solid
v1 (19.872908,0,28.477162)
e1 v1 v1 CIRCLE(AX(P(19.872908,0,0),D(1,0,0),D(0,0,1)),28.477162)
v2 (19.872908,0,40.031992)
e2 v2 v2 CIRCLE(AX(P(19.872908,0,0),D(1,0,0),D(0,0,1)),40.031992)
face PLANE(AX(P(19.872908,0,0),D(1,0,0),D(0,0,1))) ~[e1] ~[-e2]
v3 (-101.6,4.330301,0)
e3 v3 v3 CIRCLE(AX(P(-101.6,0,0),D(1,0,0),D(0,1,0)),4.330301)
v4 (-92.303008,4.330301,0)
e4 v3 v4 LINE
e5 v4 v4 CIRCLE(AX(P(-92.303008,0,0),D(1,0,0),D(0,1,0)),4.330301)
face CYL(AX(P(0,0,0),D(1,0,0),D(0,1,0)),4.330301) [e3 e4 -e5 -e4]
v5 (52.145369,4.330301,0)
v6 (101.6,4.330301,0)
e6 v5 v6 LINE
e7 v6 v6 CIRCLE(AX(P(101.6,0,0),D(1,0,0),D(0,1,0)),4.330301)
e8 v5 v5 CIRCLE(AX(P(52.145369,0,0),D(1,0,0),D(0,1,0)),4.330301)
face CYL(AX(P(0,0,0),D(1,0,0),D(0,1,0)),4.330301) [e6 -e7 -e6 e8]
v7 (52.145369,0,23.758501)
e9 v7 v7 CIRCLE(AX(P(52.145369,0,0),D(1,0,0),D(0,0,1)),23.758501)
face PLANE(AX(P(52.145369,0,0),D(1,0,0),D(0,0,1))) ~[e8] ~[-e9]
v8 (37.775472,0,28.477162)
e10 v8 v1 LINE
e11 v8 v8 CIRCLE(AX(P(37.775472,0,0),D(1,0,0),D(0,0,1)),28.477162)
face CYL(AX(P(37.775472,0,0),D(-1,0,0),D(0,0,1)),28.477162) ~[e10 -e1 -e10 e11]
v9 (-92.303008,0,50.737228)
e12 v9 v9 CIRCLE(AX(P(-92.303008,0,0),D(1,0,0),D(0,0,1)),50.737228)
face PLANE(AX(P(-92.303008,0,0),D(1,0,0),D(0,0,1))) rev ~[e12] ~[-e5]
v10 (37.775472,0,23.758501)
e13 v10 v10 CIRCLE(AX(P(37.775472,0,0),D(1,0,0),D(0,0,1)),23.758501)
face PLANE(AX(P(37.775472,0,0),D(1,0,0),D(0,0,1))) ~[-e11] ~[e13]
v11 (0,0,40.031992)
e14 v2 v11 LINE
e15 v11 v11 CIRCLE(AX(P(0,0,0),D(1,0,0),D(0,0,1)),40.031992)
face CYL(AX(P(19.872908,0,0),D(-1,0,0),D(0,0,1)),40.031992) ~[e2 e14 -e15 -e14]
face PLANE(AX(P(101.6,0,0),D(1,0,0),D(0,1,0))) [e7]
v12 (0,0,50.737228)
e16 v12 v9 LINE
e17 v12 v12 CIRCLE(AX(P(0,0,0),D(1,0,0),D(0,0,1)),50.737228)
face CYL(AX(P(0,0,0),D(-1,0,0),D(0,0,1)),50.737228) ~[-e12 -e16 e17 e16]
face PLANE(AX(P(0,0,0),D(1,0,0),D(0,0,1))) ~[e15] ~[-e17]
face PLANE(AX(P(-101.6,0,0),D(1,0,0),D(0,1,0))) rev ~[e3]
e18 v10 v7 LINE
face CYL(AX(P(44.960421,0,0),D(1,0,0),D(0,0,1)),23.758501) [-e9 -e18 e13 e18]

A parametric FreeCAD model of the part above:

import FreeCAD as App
import Part
import Sketcher
Q = App.Units.Quantity

doc = App.newDocument("Part")
body = doc.addObject("PartDesign::Body", "Body")

sketch1 = body.newObject("Sketcher::SketchObject", "Sketch")
sketch1.AttachmentSupport = (doc.getObject("YZ_Plane"), [""])
sketch1.MapMode = "FlatFace"
sketch1.addGeometry(Part.Circle(App.Vector(0, 0, 0), App.Vector(0, 0, 1), 4.330301), False)
sketch1.addConstraint([
    Sketcher.Constraint("Coincident", 0, 3, -1, 1),
    Sketcher.Constraint("Diameter", 0, Q("8.660601 mm")),
])
pad1 = body.newObject("PartDesign::Pad", "Pad")
pad1.Profile = sketch1
pad1.Length = Q("8 in")
pad1.Midplane = True

sketch2 = body.newObject("Sketcher::SketchObject", "Sketch001")
sketch2.AttachmentSupport = (doc.getObject("XZ_Plane"), [""])
sketch2.MapMode = "FlatFace"
sketch2.addGeometry([
    Part.LineSegment(App.Vector(-92.303008, 50.737228, 0), App.Vector(-92.303008, 0, 0)),
    Part.LineSegment(App.Vector(-92.303008, 0, 0), App.Vector(52.145369, 0, 0)),
    Part.LineSegment(App.Vector(52.145369, 0, 0), App.Vector(52.145369, 23.758501, 0)),
    Part.LineSegment(App.Vector(52.145369, 23.758501, 0), App.Vector(37.775472, 23.758501, 0)),
    Part.LineSegment(App.Vector(37.775472, 23.758501, 0), App.Vector(37.775472, 28.477162, 0)),
    Part.LineSegment(App.Vector(37.775472, 28.477162, 0), App.Vector(19.872908, 28.477162, 0)),
    Part.LineSegment(App.Vector(19.872908, 28.477162, 0), App.Vector(19.872908, 40.031992, 0)),
    Part.LineSegment(App.Vector(19.872908, 40.031992, 0), App.Vector(0, 40.031992, 0)),
    Part.LineSegment(App.Vector(0, 40.031992, 0), App.Vector(0, 50.737228, 0)),
    Part.LineSegment(App.Vector(0, 50.737228, 0), App.Vector(-92.303008, 50.737228, 0)),
], False)
sketch2.addConstraint([
    Sketcher.Constraint("Coincident", 0, 2, 1, 1),
    Sketcher.Constraint("Coincident", 1, 2, 2, 1),
    Sketcher.Constraint("Coincident", 2, 2, 3, 1),
    Sketcher.Constraint("Coincident", 3, 2, 4, 1),
    Sketcher.Constraint("Coincident", 4, 2, 5, 1),
    Sketcher.Constraint("Coincident", 5, 2, 6, 1),
    Sketcher.Constraint("Coincident", 6, 2, 7, 1),
    Sketcher.Constraint("Coincident", 7, 2, 8, 1),
    Sketcher.Constraint("Coincident", 8, 2, 9, 1),
    Sketcher.Constraint("Coincident", 9, 2, 0, 1),
    Sketcher.Constraint("Vertical", 0),
    Sketcher.Constraint("Horizontal", 1),
    Sketcher.Constraint("Vertical", 2),
    Sketcher.Constraint("Horizontal", 3),
    Sketcher.Constraint("Vertical", 4),
    Sketcher.Constraint("Horizontal", 5),
    Sketcher.Constraint("Vertical", 6),
    Sketcher.Constraint("Horizontal", 7),
    Sketcher.Constraint("Vertical", 8),
    Sketcher.Constraint("Horizontal", 9),
    Sketcher.Constraint("PointOnObject", 0, 2, -1),
    Sketcher.Constraint("PointOnObject", 7, 2, -2),
    Sketcher.Constraint("DistanceY", 2, 1, 2, 2, Q("23.758501 mm")),
    Sketcher.Constraint("DistanceX", 0, 2, 3, 2, Q("5.1212 in")),
    Sketcher.Constraint("DistanceY", 0, 2, 0, 1, Q("50.737228 mm")),
    Sketcher.Constraint("DistanceY", 4, 1, 4, 2, Q("4.718661 mm")),
    Sketcher.Constraint("DistanceY", 6, 1, 6, 2, Q("11.55483 mm")),
    Sketcher.Constraint("DistanceX", 1, 1, 1, 2, Q("144.448377 mm")),
    Sketcher.Constraint("DistanceX", 5, 2, 5, 1, Q("17.902564 mm")),
    Sketcher.Constraint("DistanceX", 7, 2, 7, 1, Q("19.872908 mm")),
])
revolution = body.newObject("PartDesign::Revolution", "Revolution")
revolution.Profile = sketch2
revolution.ReferenceAxis = (sketch2, ["H_Axis"])
revolution.Angle = 360

doc.recompute()
